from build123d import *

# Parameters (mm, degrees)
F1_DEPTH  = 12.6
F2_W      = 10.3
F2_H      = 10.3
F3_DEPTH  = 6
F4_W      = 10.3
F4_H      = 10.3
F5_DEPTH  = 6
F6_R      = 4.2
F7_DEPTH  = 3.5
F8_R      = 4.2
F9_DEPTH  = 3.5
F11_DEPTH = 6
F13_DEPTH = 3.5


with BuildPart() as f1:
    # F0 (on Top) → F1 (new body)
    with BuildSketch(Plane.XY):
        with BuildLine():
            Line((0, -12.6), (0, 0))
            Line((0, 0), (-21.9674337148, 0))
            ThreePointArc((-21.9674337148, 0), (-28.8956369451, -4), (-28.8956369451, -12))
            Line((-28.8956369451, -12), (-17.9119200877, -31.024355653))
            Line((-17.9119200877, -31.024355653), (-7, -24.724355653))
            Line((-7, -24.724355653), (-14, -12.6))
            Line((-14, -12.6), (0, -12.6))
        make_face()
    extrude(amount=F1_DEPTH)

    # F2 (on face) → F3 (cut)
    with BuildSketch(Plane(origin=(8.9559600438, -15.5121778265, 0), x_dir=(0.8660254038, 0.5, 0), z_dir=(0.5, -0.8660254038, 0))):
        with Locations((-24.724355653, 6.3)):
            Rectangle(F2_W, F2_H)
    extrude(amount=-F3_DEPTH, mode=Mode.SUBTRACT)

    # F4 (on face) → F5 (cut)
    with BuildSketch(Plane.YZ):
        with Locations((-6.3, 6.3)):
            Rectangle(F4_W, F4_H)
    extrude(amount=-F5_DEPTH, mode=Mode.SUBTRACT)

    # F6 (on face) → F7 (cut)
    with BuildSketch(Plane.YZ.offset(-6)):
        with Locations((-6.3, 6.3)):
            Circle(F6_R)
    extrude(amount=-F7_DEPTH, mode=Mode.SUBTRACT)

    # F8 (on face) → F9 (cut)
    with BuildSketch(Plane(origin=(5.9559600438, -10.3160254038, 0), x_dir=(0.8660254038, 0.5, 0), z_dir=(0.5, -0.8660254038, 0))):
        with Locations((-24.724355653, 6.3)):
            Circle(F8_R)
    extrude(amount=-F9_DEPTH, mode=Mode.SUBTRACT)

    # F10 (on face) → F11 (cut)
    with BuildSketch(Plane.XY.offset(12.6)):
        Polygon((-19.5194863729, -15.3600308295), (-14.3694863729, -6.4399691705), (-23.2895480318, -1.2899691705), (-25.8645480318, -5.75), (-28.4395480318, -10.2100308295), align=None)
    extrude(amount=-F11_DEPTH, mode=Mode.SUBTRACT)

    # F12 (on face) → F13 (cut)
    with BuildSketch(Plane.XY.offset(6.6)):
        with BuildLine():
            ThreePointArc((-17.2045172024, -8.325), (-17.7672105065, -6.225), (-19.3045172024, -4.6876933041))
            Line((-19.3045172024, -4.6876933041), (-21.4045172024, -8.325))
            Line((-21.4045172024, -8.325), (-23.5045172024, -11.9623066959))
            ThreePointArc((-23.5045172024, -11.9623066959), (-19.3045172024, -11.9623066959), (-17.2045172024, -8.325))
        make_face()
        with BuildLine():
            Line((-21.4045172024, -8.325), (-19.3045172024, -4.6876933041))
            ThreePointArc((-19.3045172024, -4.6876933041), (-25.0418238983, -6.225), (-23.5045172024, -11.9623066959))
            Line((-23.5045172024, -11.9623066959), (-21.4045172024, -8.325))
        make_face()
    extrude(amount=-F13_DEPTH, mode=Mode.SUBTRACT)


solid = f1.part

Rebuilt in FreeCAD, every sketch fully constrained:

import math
import FreeCAD as App
import Part
import Sketcher
from FreeCAD import Vector
Q = App.Units.Quantity


def add_polygon(sketch, points):
    """Adds a closed chain of lines whose ends are joined by coincident constraints."""
    first, n = sketch.GeometryCount, len(points)
    for a, b in zip(points, points[1:] + points[:1]):
        sketch.addGeometry(Part.LineSegment(App.Vector(*a, 0), App.Vector(*b, 0)), False)
    for i in range(n):
        sketch.addConstraint(Sketcher.Constraint("Coincident", first + i, 2, first + (i + 1) % n, 1))

doc = App.newDocument("Part")
body = doc.addObject("PartDesign::Body", "Body")

sketch1 = body.newObject("Sketcher::SketchObject", "Sketch")
sketch1.AttachmentSupport = (doc.getObject("XY_Plane"), [""])
sketch1.MapMode = "FlatFace"
sketch1.addGeometry(Part.LineSegment(Vector(0, -12.6, 0), Vector(0, 0, 0)), False)
sketch1.addGeometry(Part.LineSegment(Vector(0, 0, 0), Vector(-21.967434, 0, 0)), False)
sketch1.addGeometry(Part.ArcOfCircle(Part.Circle(Vector(-21.967434, -8, 0), Vector(0, 0, 1), 8), math.radians(90), math.radians(210)), False)
sketch1.addGeometry(Part.LineSegment(Vector(-28.895637, -12, 0), Vector(-17.91192, -31.024356, 0)), False)
sketch1.addGeometry(Part.LineSegment(Vector(-17.91192, -31.024356, 0), Vector(-7, -24.724356, 0)), False)
sketch1.addGeometry(Part.LineSegment(Vector(-7, -24.724356, 0), Vector(-14, -12.6, 0)), False)
sketch1.addGeometry(Part.LineSegment(Vector(-14, -12.6, 0), Vector(0, -12.6, 0)), False)
sketch1.addConstraint(Sketcher.Constraint("Coincident", 0, 2, 1, 1))
sketch1.addConstraint(Sketcher.Constraint("Tangent", 1, 2, 2, 1))
sketch1.addConstraint(Sketcher.Constraint("Tangent", 2, 2, 3, 1))
sketch1.addConstraint(Sketcher.Constraint("Coincident", 3, 2, 4, 1))
sketch1.addConstraint(Sketcher.Constraint("Coincident", 4, 2, 5, 1))
sketch1.addConstraint(Sketcher.Constraint("Coincident", 5, 2, 6, 1))
sketch1.addConstraint(Sketcher.Constraint("Coincident", 6, 2, 0, 1))
sketch1.addConstraint(Sketcher.Constraint("Vertical", 0))
sketch1.addConstraint(Sketcher.Constraint("Horizontal", 1))
sketch1.addConstraint(Sketcher.Constraint("Horizontal", 6))
sketch1.addConstraint(Sketcher.Constraint("Coincident", 0, 2, -1, 1))
sketch1.addConstraint(Sketcher.Constraint("Perpendicular", 3, 4))
sketch1.addConstraint(Sketcher.Constraint("Perpendicular", 4, 5))
sketch1.addConstraint(Sketcher.Constraint("Radius", 2, 8.0))
sketch1.addConstraint(Sketcher.Constraint("DistanceX", 6, 1, 6, 2, 14.0))
sketch1.addConstraint(Sketcher.Constraint("Angle", 3, Q("-60 deg")))
sketch1.addConstraint(Sketcher.Constraint("Distance", 5, 14.0))
sketch1.addConstraint(Sketcher.Constraint("DistanceY", 0, 1, 0, 2, 12.6))
sketch1.addConstraint(Sketcher.Constraint("Distance", 4, 12.6))
pad1 = body.newObject("PartDesign::Pad", "Pad")
pad1.Profile = sketch1
pad1.Length = 12.6

sketch2 = body.newObject("Sketcher::SketchObject", "Sketch001")
sketch2.Placement = App.Placement(Vector(8.95596, -15.512178, 0), App.Rotation(Vector(0.866025404, 0.5, 0), Vector(0, 0, 1), Vector(0.5, -0.866025404, 0), "ZXY"))
add_polygon(sketch2, [(-29.874356, 11.45), (-29.874356, 1.15), (-19.574356, 1.15), (-19.574356, 11.45)])
sketch2.addConstraint(Sketcher.Constraint("Vertical", 0))
sketch2.addConstraint(Sketcher.Constraint("Horizontal", 1))
sketch2.addConstraint(Sketcher.Constraint("Vertical", 2))
sketch2.addConstraint(Sketcher.Constraint("Horizontal", 3))
sketch2.addConstraint(Sketcher.Constraint("Equal", 3, 0))
sketch2.addConstraint(Sketcher.Constraint("DistanceX", 1, 1, 1, 2, 10.3))
sketch2.addConstraint(Sketcher.Constraint("DistanceY", -1, 1, 0, 2, 1.15))
sketch2.addConstraint(Sketcher.Constraint("DistanceX", 0, 2, -1, 1, 29.874356))
pocket1 = body.newObject("PartDesign::Pocket", "Pocket")
pocket1.Profile = sketch2
pocket1.Length = 6

sketch3 = body.newObject("Sketcher::SketchObject", "Sketch002")
sketch3.AttachmentSupport = (doc.getObject("YZ_Plane"), [""])
sketch3.MapMode = "FlatFace"
add_polygon(sketch3, [(-11.45, 11.45), (-11.45, 1.15), (-1.15, 1.15), (-1.15, 11.45)])
sketch3.addConstraint(Sketcher.Constraint("Vertical", 0))
sketch3.addConstraint(Sketcher.Constraint("Horizontal", 1))
sketch3.addConstraint(Sketcher.Constraint("Vertical", 2))
sketch3.addConstraint(Sketcher.Constraint("Horizontal", 3))
sketch3.addConstraint(Sketcher.Constraint("Equal", 3, 0))
sketch3.addConstraint(Sketcher.Constraint("DistanceX", 1, 1, 1, 2, 10.3))
sketch3.addConstraint(Sketcher.Constraint("DistanceX", 0, 2, -1, 1, 11.45))
sketch3.addConstraint(Sketcher.Constraint("DistanceY", -1, 1, 0, 2, 1.15))
pocket2 = body.newObject("PartDesign::Pocket", "Pocket001")
pocket2.Profile = sketch3
pocket2.Length = 6

sketch4 = body.newObject("Sketcher::SketchObject", "Sketch003")
sketch4.AttachmentSupport = (doc.getObject("YZ_Plane"), [""])
sketch4.MapMode = "FlatFace"
sketch4.AttachmentOffset = App.Placement(Vector(0, 0, -6), App.Rotation())
sketch4.addGeometry(Part.Circle(Vector(-6.3, 6.3, 0), Vector(0, 0, 1), 4.2), False)
sketch4.addConstraint(Sketcher.Constraint("Diameter", 0, 8.4))
sketch4.addConstraint(Sketcher.Constraint("DistanceX", 0, 3, -1, 1, 6.3))
sketch4.addConstraint(Sketcher.Constraint("DistanceY", -1, 1, 0, 3, 6.3))
pocket3 = body.newObject("PartDesign::Pocket", "Pocket002")
pocket3.Profile = sketch4
pocket3.Length = 3.5

sketch5 = body.newObject("Sketcher::SketchObject", "Sketch004")
sketch5.Placement = App.Placement(Vector(5.95596, -10.316025, 0), App.Rotation(Vector(0.866025404, 0.5, 0), Vector(0, 0, 1), Vector(0.5, -0.866025404, 0), "ZXY"))
sketch5.addGeometry(Part.Circle(Vector(-24.724356, 6.3, 0), Vector(0, 0, 1), 4.2), False)
sketch5.addConstraint(Sketcher.Constraint("Diameter", 0, 8.4))
sketch5.addConstraint(Sketcher.Constraint("DistanceY", -1, 1, 0, 3, 6.3))
sketch5.addConstraint(Sketcher.Constraint("DistanceX", 0, 3, -1, 1, 24.724356))
pocket4 = body.newObject("PartDesign::Pocket", "Pocket003")
pocket4.Profile = sketch5
pocket4.Length = 3.5

sketch6 = body.newObject("Sketcher::SketchObject", "Sketch005")
sketch6.AttachmentSupport = (doc.getObject("XY_Plane"), [""])
sketch6.MapMode = "FlatFace"
sketch6.AttachmentOffset = App.Placement(Vector(0, 0, 12.6), App.Rotation())
add_polygon(sketch6, [(-19.519486, -15.360031), (-14.369486, -6.439969), (-23.289548, -1.289969), (-28.439548, -10.210031)])
sketch6.addConstraint(Sketcher.Constraint("Perpendicular", 0, 1))
sketch6.addConstraint(Sketcher.Constraint("Perpendicular", 1, 2))
sketch6.addConstraint(Sketcher.Constraint("Perpendicular", 2, 3))
sketch6.addConstraint(Sketcher.Constraint("Equal", 0, 1))
sketch6.addConstraint(Sketcher.Constraint("Angle", 0, Q("60 deg")))
sketch6.addConstraint(Sketcher.Constraint("Distance", 0, 10.3))
sketch6.addConstraint(Sketcher.Constraint("DistanceY", 0, 2, -1, 1, 6.439969))
sketch6.addConstraint(Sketcher.Constraint("DistanceX", 1, 2, -1, 1, 23.289548))
pocket5 = body.newObject("PartDesign::Pocket", "Pocket004")
pocket5.Profile = sketch6
pocket5.Length = 6

sketch7 = body.newObject("Sketcher::SketchObject", "Sketch006")
sketch7.AttachmentSupport = (doc.getObject("XY_Plane"), [""])
sketch7.MapMode = "FlatFace"
sketch7.AttachmentOffset = App.Placement(Vector(0, 0, 6.6), App.Rotation())
sketch7.addGeometry(Part.ArcOfCircle(Part.Circle(Vector(-21.404517, -8.325, 0), Vector(0, 0, 1), 4.2), math.radians(0), math.radians(60)), False)
sketch7.addGeometry(Part.ArcOfCircle(Part.Circle(Vector(-21.404517, -8.325, 0), Vector(0, 0, 1), 4.2), math.radians(60), math.radians(360)), False)
sketch7.addConstraint(Sketcher.Constraint("Tangent", 0, 1, 1, 2))
sketch7.addConstraint(Sketcher.Constraint("Coincident", 1, 1, 0, 2))
sketch7.addConstraint(Sketcher.Constraint("Horizontal", 1, 3, 0, 1))
sketch7.addConstraint(Sketcher.Constraint("Radius", 0, 4.2))
sketch7.addConstraint(Sketcher.Constraint("DistanceX", 0, 3, 1, 1, 2.1))
sketch7.addConstraint(Sketcher.Constraint("DistanceY", 0, 3, -1, 1, 8.325))
sketch7.addConstraint(Sketcher.Constraint("DistanceX", 0, 3, -1, 1, 21.404517))
pocket6 = body.newObject("PartDesign::Pocket", "Pocket005")
pocket6.Profile = sketch7
pocket6.Length = 3.5

doc.recompute()
